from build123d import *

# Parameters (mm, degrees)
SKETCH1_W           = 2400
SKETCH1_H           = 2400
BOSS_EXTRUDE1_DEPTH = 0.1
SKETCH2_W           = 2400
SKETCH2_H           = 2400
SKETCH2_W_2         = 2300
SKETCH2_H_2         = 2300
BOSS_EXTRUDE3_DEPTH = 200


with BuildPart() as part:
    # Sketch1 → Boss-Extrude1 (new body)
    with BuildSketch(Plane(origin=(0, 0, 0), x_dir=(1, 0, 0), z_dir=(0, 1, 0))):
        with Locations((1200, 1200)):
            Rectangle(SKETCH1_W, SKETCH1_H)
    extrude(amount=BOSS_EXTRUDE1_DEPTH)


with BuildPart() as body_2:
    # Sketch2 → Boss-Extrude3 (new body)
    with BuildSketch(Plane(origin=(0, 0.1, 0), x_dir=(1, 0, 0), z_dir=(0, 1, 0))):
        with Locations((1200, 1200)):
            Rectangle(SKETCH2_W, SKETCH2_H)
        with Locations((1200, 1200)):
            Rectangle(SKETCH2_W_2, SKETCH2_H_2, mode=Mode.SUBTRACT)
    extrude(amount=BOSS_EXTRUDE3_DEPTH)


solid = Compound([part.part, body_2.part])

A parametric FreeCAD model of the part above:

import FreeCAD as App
import Part
import Sketcher
from FreeCAD import Vector

doc = App.newDocument("Part")
body = doc.addObject("PartDesign::Body", "Body")

# Sketch on XZ plane
sketch1 = body.newObject("Sketcher::SketchObject", "Sketch")
sketch1.AttachmentSupport = (doc.getObject("XZ_Plane"), [""])
sketch1.MapMode = "FlatFace"
sketch1.addGeometry([
    Part.LineSegment(Vector(0, -2400, 0), Vector(0, 0, 0)),
    Part.LineSegment(Vector(0, 0, 0), Vector(2400, 0, 0)),
    Part.LineSegment(Vector(2400, 0, 0), Vector(2400, -2400, 0)),
    Part.LineSegment(Vector(2400, -2400, 0), Vector(0, -2400, 0)),
], False)
sketch1.addConstraint([
    Sketcher.Constraint("Coincident", 0, 2, 1, 1),
    Sketcher.Constraint("Coincident", 1, 2, 2, 1),
    Sketcher.Constraint("Coincident", 2, 2, 3, 1),
    Sketcher.Constraint("Coincident", 3, 2, 0, 1),
    Sketcher.Constraint("Vertical", 0),
    Sketcher.Constraint("Horizontal", 1),
    Sketcher.Constraint("Vertical", 2),
    Sketcher.Constraint("Horizontal", 3),
    Sketcher.Constraint("Coincident", 0, 2, -1, 1),
    Sketcher.Constraint("Equal", 3, 0),
    Sketcher.Constraint("DistanceX", 1, 1, 1, 2, 2400.0),
])
pad1 = body.newObject("PartDesign::Pad", "Pad")
pad1.Profile = sketch1
pad1.Length = 0.1
pad1.Reversed = True
body2 = doc.addObject("PartDesign::Body", "Body001")

# Sketch on XZ plane
sketch2 = body2.newObject("Sketcher::SketchObject", "Sketch001")
sketch2.AttachmentSupport = (doc.getObject("XZ_Plane001"), [""])
sketch2.MapMode = "FlatFace"
sketch2.AttachmentOffset = App.Placement(Vector(0, 0, -0.1), App.Rotation())
sketch2.addGeometry([
    Part.LineSegment(Vector(0, -2400, 0), Vector(0, 0, 0)),  # 0
    Part.LineSegment(Vector(0, 0, 0), Vector(2400, 0, 0)),  # 1
    Part.LineSegment(Vector(2400, 0, 0), Vector(2400, -2400, 0)),  # 2
    Part.LineSegment(Vector(2400, -2400, 0), Vector(0, -2400, 0)),  # 3
    Part.LineSegment(Vector(2350, -50, 0), Vector(50, -50, 0)),  # 4
    Part.LineSegment(Vector(50, -50, 0), Vector(50, -2350, 0)),  # 5
    Part.LineSegment(Vector(50, -2350, 0), Vector(2350, -2350, 0)),  # 6
    Part.LineSegment(Vector(2350, -2350, 0), Vector(2350, -50, 0)),  # 7
], False)
sketch2.addConstraint([
    Sketcher.Constraint("Coincident", 0, 2, 1, 1),
    Sketcher.Constraint("Coincident", 1, 2, 2, 1),
    Sketcher.Constraint("Coincident", 2, 2, 3, 1),
    Sketcher.Constraint("Coincident", 3, 2, 0, 1),
    Sketcher.Constraint("Coincident", 4, 2, 5, 1),
    Sketcher.Constraint("Coincident", 5, 2, 6, 1),
    Sketcher.Constraint("Coincident", 6, 2, 7, 1),
    Sketcher.Constraint("Coincident", 7, 2, 4, 1),
    Sketcher.Constraint("Vertical", 0),
    Sketcher.Constraint("Horizontal", 1),
    Sketcher.Constraint("Vertical", 2),
    Sketcher.Constraint("Horizontal", 3),
    Sketcher.Constraint("Horizontal", 4),
    Sketcher.Constraint("Vertical", 5),
    Sketcher.Constraint("Horizontal", 6),
    Sketcher.Constraint("Vertical", 7),
    Sketcher.Constraint("Coincident", 0, 2, -1, 1),
    Sketcher.Constraint("Equal", 3, 0),
    Sketcher.Constraint("Equal", 6, 5),
    Sketcher.Constraint("DistanceX", 1, 1, 1, 2, 2400.0),
    Sketcher.Constraint("DistanceX", 4, 2, 4, 1, 2300.0),
    Sketcher.Constraint("DistanceX", -1, 1, 4, 2, 50.0),
    Sketcher.Constraint("DistanceY", 4, 2, -1, 1, 50.0),
])
pad2 = body2.newObject("PartDesign::Pad", "Pad001")
pad2.Profile = sketch2
pad2.Length = 200
pad2.Reversed = True

doc.recompute()
